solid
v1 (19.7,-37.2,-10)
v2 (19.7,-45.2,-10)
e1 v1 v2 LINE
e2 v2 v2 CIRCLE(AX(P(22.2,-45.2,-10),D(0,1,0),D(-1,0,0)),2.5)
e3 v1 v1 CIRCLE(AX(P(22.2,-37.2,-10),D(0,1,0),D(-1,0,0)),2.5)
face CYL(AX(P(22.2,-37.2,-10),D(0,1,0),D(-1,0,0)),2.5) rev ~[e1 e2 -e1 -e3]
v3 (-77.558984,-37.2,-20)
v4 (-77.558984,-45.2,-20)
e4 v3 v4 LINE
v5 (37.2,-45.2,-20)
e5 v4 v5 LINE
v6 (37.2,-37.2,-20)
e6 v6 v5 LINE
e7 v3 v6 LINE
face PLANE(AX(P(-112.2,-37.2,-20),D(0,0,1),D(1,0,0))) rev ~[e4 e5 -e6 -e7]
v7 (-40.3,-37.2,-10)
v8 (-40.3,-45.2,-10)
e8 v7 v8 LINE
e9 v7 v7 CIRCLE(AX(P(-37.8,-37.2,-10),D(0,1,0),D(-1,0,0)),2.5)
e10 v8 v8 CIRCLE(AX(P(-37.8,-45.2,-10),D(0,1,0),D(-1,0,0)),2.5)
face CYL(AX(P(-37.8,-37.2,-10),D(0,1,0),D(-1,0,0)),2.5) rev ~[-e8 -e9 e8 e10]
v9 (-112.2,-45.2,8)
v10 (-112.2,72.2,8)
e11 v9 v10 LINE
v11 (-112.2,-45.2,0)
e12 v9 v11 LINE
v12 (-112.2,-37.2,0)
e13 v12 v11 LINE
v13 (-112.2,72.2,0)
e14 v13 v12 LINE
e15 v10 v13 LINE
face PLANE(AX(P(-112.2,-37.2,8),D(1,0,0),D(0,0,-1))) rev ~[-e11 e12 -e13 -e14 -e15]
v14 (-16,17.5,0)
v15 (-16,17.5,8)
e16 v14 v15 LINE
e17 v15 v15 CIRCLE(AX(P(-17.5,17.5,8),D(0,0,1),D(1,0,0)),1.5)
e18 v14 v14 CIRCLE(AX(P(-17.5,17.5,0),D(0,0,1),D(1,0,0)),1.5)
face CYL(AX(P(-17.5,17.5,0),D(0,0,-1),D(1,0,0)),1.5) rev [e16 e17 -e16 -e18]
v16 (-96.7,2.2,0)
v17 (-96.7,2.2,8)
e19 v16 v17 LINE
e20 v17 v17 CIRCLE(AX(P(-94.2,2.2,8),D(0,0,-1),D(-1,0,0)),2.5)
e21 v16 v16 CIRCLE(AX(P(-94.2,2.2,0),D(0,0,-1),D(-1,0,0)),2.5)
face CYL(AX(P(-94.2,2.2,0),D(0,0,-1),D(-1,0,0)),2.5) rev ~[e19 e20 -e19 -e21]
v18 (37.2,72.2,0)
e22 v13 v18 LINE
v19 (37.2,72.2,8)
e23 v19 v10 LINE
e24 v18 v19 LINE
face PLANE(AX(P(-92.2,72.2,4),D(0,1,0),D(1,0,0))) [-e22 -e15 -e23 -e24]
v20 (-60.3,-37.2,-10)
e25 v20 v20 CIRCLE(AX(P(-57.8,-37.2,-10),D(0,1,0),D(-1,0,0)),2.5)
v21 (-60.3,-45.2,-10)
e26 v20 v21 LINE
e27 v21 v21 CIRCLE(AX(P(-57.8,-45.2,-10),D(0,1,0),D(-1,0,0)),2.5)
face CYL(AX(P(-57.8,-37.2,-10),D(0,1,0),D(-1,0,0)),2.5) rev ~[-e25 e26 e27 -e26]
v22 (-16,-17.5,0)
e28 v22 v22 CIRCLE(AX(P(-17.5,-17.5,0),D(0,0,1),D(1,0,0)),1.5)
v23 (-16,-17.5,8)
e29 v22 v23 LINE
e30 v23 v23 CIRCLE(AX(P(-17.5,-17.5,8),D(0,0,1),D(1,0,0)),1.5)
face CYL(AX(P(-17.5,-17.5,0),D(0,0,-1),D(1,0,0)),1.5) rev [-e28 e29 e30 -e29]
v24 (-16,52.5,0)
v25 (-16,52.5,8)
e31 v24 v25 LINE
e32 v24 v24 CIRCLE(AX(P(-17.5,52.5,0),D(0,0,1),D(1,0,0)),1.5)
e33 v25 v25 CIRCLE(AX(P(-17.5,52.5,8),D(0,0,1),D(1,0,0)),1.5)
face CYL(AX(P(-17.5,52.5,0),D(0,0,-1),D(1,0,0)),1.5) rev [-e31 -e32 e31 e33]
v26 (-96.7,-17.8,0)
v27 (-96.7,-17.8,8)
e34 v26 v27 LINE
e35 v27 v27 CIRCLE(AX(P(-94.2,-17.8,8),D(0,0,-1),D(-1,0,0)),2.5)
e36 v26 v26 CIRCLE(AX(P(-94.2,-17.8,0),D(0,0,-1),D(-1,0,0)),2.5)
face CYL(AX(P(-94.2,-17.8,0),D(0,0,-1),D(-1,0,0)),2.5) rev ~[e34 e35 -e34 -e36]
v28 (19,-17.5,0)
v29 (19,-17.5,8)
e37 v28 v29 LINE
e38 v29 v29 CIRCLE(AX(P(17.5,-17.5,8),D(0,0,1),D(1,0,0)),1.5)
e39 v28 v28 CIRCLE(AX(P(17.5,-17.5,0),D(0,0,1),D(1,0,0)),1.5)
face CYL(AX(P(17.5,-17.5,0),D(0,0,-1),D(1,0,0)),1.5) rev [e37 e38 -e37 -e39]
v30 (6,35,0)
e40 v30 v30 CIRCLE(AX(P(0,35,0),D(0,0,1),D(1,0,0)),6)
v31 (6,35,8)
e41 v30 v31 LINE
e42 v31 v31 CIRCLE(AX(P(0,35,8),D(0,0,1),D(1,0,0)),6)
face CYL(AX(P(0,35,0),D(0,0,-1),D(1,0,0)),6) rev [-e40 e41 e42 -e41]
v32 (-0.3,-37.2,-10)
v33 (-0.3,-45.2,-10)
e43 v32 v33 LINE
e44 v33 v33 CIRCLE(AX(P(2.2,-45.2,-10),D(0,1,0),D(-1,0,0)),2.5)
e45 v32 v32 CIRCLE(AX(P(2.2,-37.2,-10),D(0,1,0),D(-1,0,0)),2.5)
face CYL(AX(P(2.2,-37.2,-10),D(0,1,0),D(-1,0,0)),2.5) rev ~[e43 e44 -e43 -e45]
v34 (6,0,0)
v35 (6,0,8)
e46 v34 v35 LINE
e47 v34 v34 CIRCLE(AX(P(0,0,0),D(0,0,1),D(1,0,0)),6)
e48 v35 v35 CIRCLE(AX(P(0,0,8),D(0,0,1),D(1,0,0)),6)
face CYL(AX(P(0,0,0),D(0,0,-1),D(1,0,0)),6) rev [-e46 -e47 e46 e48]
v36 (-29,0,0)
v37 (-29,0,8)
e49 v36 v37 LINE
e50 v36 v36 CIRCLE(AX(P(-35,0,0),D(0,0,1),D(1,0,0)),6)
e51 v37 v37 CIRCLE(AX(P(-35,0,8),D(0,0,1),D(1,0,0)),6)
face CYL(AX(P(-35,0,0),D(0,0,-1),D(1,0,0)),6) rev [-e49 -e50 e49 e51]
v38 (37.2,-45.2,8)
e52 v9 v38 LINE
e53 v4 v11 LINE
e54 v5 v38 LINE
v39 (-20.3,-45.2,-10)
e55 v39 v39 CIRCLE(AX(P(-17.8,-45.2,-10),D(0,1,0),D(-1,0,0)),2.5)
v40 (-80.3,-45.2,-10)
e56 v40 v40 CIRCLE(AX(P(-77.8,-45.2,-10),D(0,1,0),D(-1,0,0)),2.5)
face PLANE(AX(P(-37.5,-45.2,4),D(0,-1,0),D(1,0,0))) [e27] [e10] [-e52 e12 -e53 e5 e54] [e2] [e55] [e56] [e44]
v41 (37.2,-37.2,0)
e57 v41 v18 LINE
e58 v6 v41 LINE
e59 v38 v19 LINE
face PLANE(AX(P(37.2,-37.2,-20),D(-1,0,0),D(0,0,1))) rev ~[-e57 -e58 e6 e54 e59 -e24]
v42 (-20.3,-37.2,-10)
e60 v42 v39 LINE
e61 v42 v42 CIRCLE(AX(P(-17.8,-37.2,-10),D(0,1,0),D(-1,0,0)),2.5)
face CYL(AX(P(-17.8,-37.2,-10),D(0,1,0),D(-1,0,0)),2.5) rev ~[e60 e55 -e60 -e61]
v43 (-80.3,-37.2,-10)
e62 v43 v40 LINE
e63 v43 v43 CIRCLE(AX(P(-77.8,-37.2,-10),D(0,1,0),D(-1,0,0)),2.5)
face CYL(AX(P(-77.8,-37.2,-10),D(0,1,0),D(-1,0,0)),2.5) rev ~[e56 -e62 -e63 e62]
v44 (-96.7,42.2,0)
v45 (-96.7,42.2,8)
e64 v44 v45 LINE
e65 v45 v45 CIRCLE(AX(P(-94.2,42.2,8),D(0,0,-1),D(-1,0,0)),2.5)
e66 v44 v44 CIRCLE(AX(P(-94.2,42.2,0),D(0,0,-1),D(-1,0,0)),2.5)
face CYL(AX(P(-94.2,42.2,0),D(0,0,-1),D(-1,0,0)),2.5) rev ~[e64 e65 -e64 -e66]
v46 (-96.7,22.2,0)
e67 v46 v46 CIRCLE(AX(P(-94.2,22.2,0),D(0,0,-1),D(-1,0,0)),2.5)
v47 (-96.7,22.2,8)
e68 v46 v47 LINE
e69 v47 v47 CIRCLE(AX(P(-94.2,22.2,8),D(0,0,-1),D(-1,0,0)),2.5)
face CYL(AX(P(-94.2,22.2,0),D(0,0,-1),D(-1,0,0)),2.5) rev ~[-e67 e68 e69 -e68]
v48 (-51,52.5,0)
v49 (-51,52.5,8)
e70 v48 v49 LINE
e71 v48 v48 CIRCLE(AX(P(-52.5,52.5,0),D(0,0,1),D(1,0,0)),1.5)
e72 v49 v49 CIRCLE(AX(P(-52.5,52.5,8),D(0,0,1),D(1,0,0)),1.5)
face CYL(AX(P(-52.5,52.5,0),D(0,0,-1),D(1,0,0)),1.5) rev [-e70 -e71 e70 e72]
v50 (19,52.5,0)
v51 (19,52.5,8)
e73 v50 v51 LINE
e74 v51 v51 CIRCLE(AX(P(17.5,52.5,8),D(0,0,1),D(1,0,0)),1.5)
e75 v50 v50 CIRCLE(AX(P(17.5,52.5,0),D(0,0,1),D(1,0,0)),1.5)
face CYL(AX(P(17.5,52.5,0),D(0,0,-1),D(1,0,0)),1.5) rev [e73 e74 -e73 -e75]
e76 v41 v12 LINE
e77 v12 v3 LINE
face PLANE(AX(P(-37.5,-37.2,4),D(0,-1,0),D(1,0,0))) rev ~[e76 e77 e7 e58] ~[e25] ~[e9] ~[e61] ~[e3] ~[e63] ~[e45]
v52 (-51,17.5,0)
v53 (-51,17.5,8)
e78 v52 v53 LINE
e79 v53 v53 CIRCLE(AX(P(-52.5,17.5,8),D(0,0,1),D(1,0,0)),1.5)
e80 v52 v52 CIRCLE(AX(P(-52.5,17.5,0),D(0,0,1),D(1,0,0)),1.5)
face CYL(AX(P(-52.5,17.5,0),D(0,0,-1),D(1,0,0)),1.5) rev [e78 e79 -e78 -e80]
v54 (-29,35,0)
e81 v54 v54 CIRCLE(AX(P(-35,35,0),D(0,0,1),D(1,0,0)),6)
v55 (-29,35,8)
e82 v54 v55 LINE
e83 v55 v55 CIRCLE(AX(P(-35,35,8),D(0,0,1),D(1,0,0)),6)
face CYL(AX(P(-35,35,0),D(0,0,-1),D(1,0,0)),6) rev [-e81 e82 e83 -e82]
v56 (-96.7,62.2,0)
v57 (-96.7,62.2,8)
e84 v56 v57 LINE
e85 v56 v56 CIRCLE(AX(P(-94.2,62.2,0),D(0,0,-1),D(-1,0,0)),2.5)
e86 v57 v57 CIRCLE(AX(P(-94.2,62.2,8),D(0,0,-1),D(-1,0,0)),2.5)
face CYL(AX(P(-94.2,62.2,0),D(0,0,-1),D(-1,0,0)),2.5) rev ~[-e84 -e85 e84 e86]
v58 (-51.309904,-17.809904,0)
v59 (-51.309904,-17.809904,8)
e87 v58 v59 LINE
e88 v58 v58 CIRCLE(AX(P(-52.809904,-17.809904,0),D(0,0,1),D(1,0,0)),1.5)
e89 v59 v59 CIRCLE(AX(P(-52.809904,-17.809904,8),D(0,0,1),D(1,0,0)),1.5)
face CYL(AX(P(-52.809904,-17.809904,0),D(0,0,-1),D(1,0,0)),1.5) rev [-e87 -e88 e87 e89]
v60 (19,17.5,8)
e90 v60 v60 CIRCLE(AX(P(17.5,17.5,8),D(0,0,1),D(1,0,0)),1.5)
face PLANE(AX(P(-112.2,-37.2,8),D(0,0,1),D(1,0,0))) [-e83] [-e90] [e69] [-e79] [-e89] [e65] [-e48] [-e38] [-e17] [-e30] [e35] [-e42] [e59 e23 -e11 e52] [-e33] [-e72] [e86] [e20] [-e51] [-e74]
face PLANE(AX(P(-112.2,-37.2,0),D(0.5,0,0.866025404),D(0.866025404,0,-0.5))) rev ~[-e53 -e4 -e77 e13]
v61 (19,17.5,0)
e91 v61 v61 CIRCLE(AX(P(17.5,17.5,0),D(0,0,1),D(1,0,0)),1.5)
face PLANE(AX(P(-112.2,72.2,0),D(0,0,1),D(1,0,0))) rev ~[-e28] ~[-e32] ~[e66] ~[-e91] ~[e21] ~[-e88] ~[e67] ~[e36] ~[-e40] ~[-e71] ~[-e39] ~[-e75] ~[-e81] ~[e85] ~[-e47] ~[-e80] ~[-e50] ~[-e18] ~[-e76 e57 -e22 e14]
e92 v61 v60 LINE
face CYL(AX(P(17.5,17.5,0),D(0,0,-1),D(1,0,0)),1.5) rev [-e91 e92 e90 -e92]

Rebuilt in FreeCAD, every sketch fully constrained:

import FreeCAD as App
import Part
import Sketcher
from FreeCAD import Vector
Q = App.Units.Quantity


def add_polygon(sketch, points):
    """Adds a closed chain of lines whose ends are joined by coincident constraints."""
    first, n = sketch.GeometryCount, len(points)
    for a, b in zip(points, points[1:] + points[:1]):
        sketch.addGeometry(Part.LineSegment(App.Vector(*a, 0), App.Vector(*b, 0)), False)
    for i in range(n):
        sketch.addConstraint(Sketcher.Constraint("Coincident", first + i, 2, first + (i + 1) % n, 1))

doc = App.newDocument("Part")
params = doc.addObject("Spreadsheet::Sheet", "Params")
for row, (alias, value) in enumerate([
    ("sketch1_diameter", "12 mm"),
    ("sketch1_diameter2", "3 mm"),
    ("sketch1_width", "109.4 mm"),
    ("pad1_length", "8 mm"),
    ("sketch2_width", "40 mm"),
    ("sketch2_height", "8 mm"),
    ("pad2_length", "109.4 mm"),
    ("sketch3_diameter", "5 mm"),
    ("pocket1_length", "25 mm"),
    ("sketch4_height", "28 mm"),
    ("sketch4_width", "149.4 mm"),
    ("pad3_length", "8 mm"),
    ("sketch5_height", "20 mm"),
    ("pocket2_length", "37 mm"),
    ("sketch6_diameter", "5 mm"),
    ("pocket3_length", "10 mm"),
], start=1):
    params.set(f"A{row}", alias)
    params.set(f"B{row}", "=" + value)
    params.setAlias(f"B{row}", alias)

body = doc.addObject("PartDesign::Body", "Body")

# Sketch on XY plane
sketch1 = body.newObject("Sketcher::SketchObject", "Sketch")
sketch1.AttachmentSupport = (doc.getObject("XY_Plane"), [""])
sketch1.MapMode = "FlatFace"
add_polygon(sketch1, [(-72.2, 72.2), (-72.2, -37.2), (37.2, -37.2), (37.2, 72.2)])  # lines 0-3
sketch1.addGeometry(Part.Circle(Vector(0, 35, 0), Vector(0, 0, 1), 6), False)  # 4
sketch1.addGeometry(Part.Circle(Vector(17.5, 52.5, 0), Vector(0, 0, 1), 1.5), False)  # 5
sketch1.addGeometry(Part.Circle(Vector(17.5, 17.5, 0), Vector(0, 0, 1), 1.5), False)  # 6
sketch1.addGeometry(Part.Circle(Vector(-17.5, 52.5, 0), Vector(0, 0, 1), 1.5), False)  # 7
sketch1.addGeometry(Part.Circle(Vector(-52.8, -17.8, 0), Vector(0, 0, 1), 1.5), False)  # 8
sketch1.addGeometry(Part.Circle(Vector(-35, 0, 0), Vector(0, 0, 1), 6), False)  # 9
sketch1.addGeometry(Part.Circle(Vector(-17.5, -17.5, 0), Vector(0, 0, 1), 1.5), False)  # 10
sketch1.addGeometry(Part.Circle(Vector(17.5, -17.5, 0), Vector(0, 0, 1), 1.5), False)  # 11
sketch1.addGeometry(Part.Circle(Vector(0, 0, 0), Vector(0, 0, 1), 6), False)  # 12
sketch1.addGeometry(Part.Circle(Vector(-52.5, 17.5, 0), Vector(0, 0, 1), 1.5), False)  # 13
sketch1.addGeometry(Part.Circle(Vector(-35, 35, 0), Vector(0, 0, 1), 6), False)  # 14
sketch1.addGeometry(Part.Circle(Vector(-52.5, 52.5, 0), Vector(0, 0, 1), 1.5), False)  # 15
sketch1.addGeometry(Part.Circle(Vector(-17.5, 17.5, 0), Vector(0, 0, 1), 1.5), False)  # 16
sketch1.addConstraint(Sketcher.Constraint("Vertical", 0))
sketch1.addConstraint(Sketcher.Constraint("Horizontal", 1))
sketch1.addConstraint(Sketcher.Constraint("Vertical", 2))
sketch1.addConstraint(Sketcher.Constraint("Horizontal", 3))
sketch1.addConstraint(Sketcher.Constraint("Coincident", 12, 3, -1, 1))
sketch1.addConstraint(Sketcher.Constraint("Equal", 5, 6))
sketch1.addConstraint(Sketcher.Constraint("Equal", 6, 7))
sketch1.addConstraint(Sketcher.Constraint("Equal", 7, 8))
sketch1.addConstraint(Sketcher.Constraint("Equal", 4, 9))
sketch1.addConstraint(Sketcher.Constraint("Equal", 8, 10))
sketch1.addConstraint(Sketcher.Constraint("Equal", 10, 11))
sketch1.addConstraint(Sketcher.Constraint("Equal", 9, 12))
sketch1.addConstraint(Sketcher.Constraint("Equal", 11, 13))
sketch1.addConstraint(Sketcher.Constraint("Equal", 12, 14))
sketch1.addConstraint(Sketcher.Constraint("Equal", 13, 15))
sketch1.addConstraint(Sketcher.Constraint("Equal", 15, 16))
sketch1.addConstraint(Sketcher.Constraint("Symmetric", 6, 3, 10, 3, -1, 1))
sketch1.addConstraint(Sketcher.Constraint("Symmetric", 11, 3, 16, 3, -1, 1))
sketch1.addConstraint(Sketcher.Constraint("Symmetric", 5, 3, 7, 3, -2))
sketch1.addConstraint(Sketcher.Constraint("Symmetric", 10, 3, 11, 3, -2))
sketch1.addConstraint(Sketcher.Constraint("PointOnObject", 4, 3, -2))
sketch1.addConstraint(Sketcher.Constraint("PointOnObject", 9, 3, -1))
sketch1.addConstraint(Sketcher.Constraint("Horizontal", 6, 3, 13, 3))
sketch1.addConstraint(Sketcher.Constraint("Horizontal", 4, 3, 14, 3))
sketch1.addConstraint(Sketcher.Constraint("Horizontal", 7, 3, 15, 3))
sketch1.addConstraint(Sketcher.Constraint("Vertical", 5, 3, 6, 3))
sketch1.addConstraint(Sketcher.Constraint("Vertical", 9, 3, 14, 3))
sketch1.addConstraint(Sketcher.Constraint("Vertical", 13, 3, 15, 3))
sketch1.addConstraint(Sketcher.Constraint("Equal", 3, 0))
sketch1.addConstraint(Sketcher.Constraint("Diameter", 4, Q("12 mm")))
sketch1.addConstraint(Sketcher.Constraint("Diameter", 5, Q("3 mm")))
sketch1.addConstraint(Sketcher.Constraint("DistanceX", 1, 1, 1, 2, Q("109.4 mm")))
sketch1.addConstraint(Sketcher.Constraint("DistanceY", -1, 1, 4, 3, Q("35 mm")))
sketch1.addConstraint(Sketcher.Constraint("DistanceX", 9, 3, -1, 1, Q("35 mm")))
sketch1.addConstraint(Sketcher.Constraint("DistanceY", 6, 3, 5, 3, Q("35 mm")))
sketch1.addConstraint(Sketcher.Constraint("DistanceX", 7, 3, 5, 3, Q("35 mm")))
sketch1.addConstraint(Sketcher.Constraint("DistanceY", 10, 3, 6, 3, Q("35 mm")))
sketch1.addConstraint(Sketcher.Constraint("DistanceX", 13, 3, 7, 3, Q("35 mm")))
sketch1.addConstraint(Sketcher.Constraint("DistanceX", 0, 2, -1, 1, Q("72.2 mm")))
sketch1.addConstraint(Sketcher.Constraint("DistanceY", 0, 2, -1, 1, Q("37.2 mm")))
sketch1.addConstraint(Sketcher.Constraint("DistanceX", 8, 3, -1, 1, Q("52.809904 mm")))
sketch1.addConstraint(Sketcher.Constraint("DistanceY", 8, 3, -1, 1, Q("17.809904 mm")))
sketch1.setExpression("Constraints[33]", "Params.sketch1_diameter")
sketch1.setExpression("Constraints[34]", "Params.sketch1_diameter2")
sketch1.setExpression("Constraints[35]", "Params.sketch1_width")
pad1 = body.newObject("PartDesign::Pad", "Pad")
pad1.Profile = sketch1
pad1.setExpression("Length", "Params.pad1_length")

# Sketch on XZ plane
sketch2 = body.newObject("Sketcher::SketchObject", "Sketch001")
sketch2.AttachmentSupport = (doc.getObject("XZ_Plane"), [""])
sketch2.MapMode = "FlatFace"
sketch2.AttachmentOffset = App.Placement(Vector(0, 0, -72.2), App.Rotation())
add_polygon(sketch2, [(-112, 0), (-112, 8), (-72, 8), (-72, 0)])  # lines 0-3
sketch2.addConstraint(Sketcher.Constraint("Vertical", 0))
sketch2.addConstraint(Sketcher.Constraint("Horizontal", 1))
sketch2.addConstraint(Sketcher.Constraint("Vertical", 2))
sketch2.addConstraint(Sketcher.Constraint("Horizontal", 3))
sketch2.addConstraint(Sketcher.Constraint("PointOnObject", 2, 2, -1))
sketch2.addConstraint(Sketcher.Constraint("DistanceX", 1, 1, 1, 2, Q("40 mm")))
sketch2.addConstraint(Sketcher.Constraint("DistanceY", 0, 1, 0, 2, Q("8 mm")))
sketch2.addConstraint(Sketcher.Constraint("DistanceX", 0, 2, -1, 1, Q("112.2 mm")))
sketch2.setExpression("Constraints[9]", "Params.sketch2_width")
sketch2.setExpression("Constraints[10]", "Params.sketch2_height")
pad2 = body.newObject("PartDesign::Pad", "Pad001")
pad2.Profile = sketch2
pad2.setExpression("Length", "Params.pad2_length")

# Sketch on XY plane
sketch3 = body.newObject("Sketcher::SketchObject", "Sketch002")
sketch3.AttachmentSupport = (doc.getObject("XY_Plane"), [""])
sketch3.MapMode = "FlatFace"
sketch3.addGeometry(Part.Circle(Vector(-94.2, 62.2, 0), Vector(0, 0, 1), 2.5), False)
sketch3.addGeometry(Part.Circle(Vector(-94.2, 42.2, 0), Vector(0, 0, 1), 2.5), False)
sketch3.addGeometry(Part.Circle(Vector(-94.2, 22.2, 0), Vector(0, 0, 1), 2.5), False)
sketch3.addGeometry(Part.Circle(Vector(-94.2, 2.2, 0), Vector(0, 0, 1), 2.5), False)
sketch3.addGeometry(Part.Circle(Vector(-94.2, -17.8, 0), Vector(0, 0, 1), 2.5), False)
sketch3.addConstraint(Sketcher.Constraint("Equal", 0, 1))
sketch3.addConstraint(Sketcher.Constraint("Equal", 1, 2))
sketch3.addConstraint(Sketcher.Constraint("Equal", 2, 3))
sketch3.addConstraint(Sketcher.Constraint("Equal", 3, 4))
sketch3.addConstraint(Sketcher.Constraint("Vertical", 0, 3, 1, 3))
sketch3.addConstraint(Sketcher.Constraint("Vertical", 1, 3, 2, 3))
sketch3.addConstraint(Sketcher.Constraint("Vertical", 2, 3, 3, 3))
sketch3.addConstraint(Sketcher.Constraint("Vertical", 3, 3, 4, 3))
sketch3.addConstraint(Sketcher.Constraint("Diameter", 0, Q("5 mm")))
sketch3.addConstraint(Sketcher.Constraint("DistanceY", 1, 3, 0, 3, Q("20 mm")))
sketch3.addConstraint(Sketcher.Constraint("DistanceY", 2, 3, 1, 3, Q("20 mm")))
sketch3.addConstraint(Sketcher.Constraint("DistanceY", 3, 3, 2, 3, Q("20 mm")))
sketch3.addConstraint(Sketcher.Constraint("DistanceY", 4, 3, 3, 3, Q("20 mm")))
sketch3.addConstraint(Sketcher.Constraint("DistanceX", 0, 3, -1, 1, Q("94.2 mm")))
sketch3.addConstraint(Sketcher.Constraint("DistanceY", -1, 1, 0, 3, Q("62.2 mm")))
sketch3.setExpression("Constraints[8]", "Params.sketch3_diameter")
pocket1 = body.newObject("PartDesign::Pocket", "Pocket")
pocket1.Profile = sketch3
pocket1.setExpression("Length", "Params.pocket1_length")
pocket1.Reversed = True

# Sketch on XZ plane
sketch4 = body.newObject("Sketcher::SketchObject", "Sketch003")
sketch4.AttachmentSupport = (doc.getObject("XZ_Plane"), [""])
sketch4.MapMode = "FlatFace"
sketch4.AttachmentOffset = App.Placement(Vector(0, 0, 37.2), App.Rotation())
add_polygon(sketch4, [(-112, 8), (-112, -20), (37, -20), (37, 8)])  # lines 0-3
sketch4.addConstraint(Sketcher.Constraint("Vertical", 0))
sketch4.addConstraint(Sketcher.Constraint("Horizontal", 1))
sketch4.addConstraint(Sketcher.Constraint("Vertical", 2))
sketch4.addConstraint(Sketcher.Constraint("Horizontal", 3))
sketch4.addConstraint(Sketcher.Constraint("DistanceY", 0, 2, 0, 1, Q("28 mm")))
sketch4.addConstraint(Sketcher.Constraint("DistanceX", 1, 1, 1, 2, Q("149.4 mm")))
sketch4.addConstraint(Sketcher.Constraint("DistanceY", 0, 2, -1, 1, Q("20 mm")))
sketch4.addConstraint(Sketcher.Constraint("DistanceX", 0, 2, -1, 1, Q("112.2 mm")))
sketch4.setExpression("Constraints[8]", "Params.sketch4_height")
sketch4.setExpression("Constraints[9]", "Params.sketch4_width")
pad3 = body.newObject("PartDesign::Pad", "Pad002")
pad3.Profile = sketch4
pad3.setExpression("Length", "Params.pad3_length")

# Sketch on XZ plane
sketch5 = body.newObject("Sketcher::SketchObject", "Sketch004")
sketch5.AttachmentSupport = (doc.getObject("XZ_Plane"), [""])
sketch5.MapMode = "FlatFace"
sketch5.AttachmentOffset = App.Placement(Vector(0, 0, 37.2), App.Rotation())
add_polygon(sketch5, [(-112, 0), (-78, -20), (-112, -20)])  # lines 0-2
sketch5.addConstraint(Sketcher.Constraint("Horizontal", 1))
sketch5.addConstraint(Sketcher.Constraint("Vertical", 2))
sketch5.addConstraint(Sketcher.Constraint("PointOnObject", 2, 2, -1))
sketch5.addConstraint(Sketcher.Constraint("DistanceY", 2, 1, 2, 2, Q("20 mm")))
sketch5.addConstraint(Sketcher.Constraint("Angle", 0, Q("-30 deg")))
sketch5.addConstraint(Sketcher.Constraint("DistanceX", 1, 2, -1, 1, Q("112.2 mm")))
sketch5.setExpression("Constraints[6]", "Params.sketch5_height")
pocket2 = body.newObject("PartDesign::Pocket", "Pocket001")
pocket2.Profile = sketch5
pocket2.setExpression("Length", "Params.pocket2_length")
pocket2.Reversed = True

# Sketch on XZ plane
sketch6 = body.newObject("Sketcher::SketchObject", "Sketch005")
sketch6.AttachmentSupport = (doc.getObject("XZ_Plane"), [""])
sketch6.MapMode = "FlatFace"
sketch6.AttachmentOffset = App.Placement(Vector(0, 0, 37.2), App.Rotation())
sketch6.addGeometry(Part.Circle(Vector(22.2, -10, 0), Vector(0, 0, 1), 2.5), False)
sketch6.addGeometry(Part.Circle(Vector(2.2, -10, 0), Vector(0, 0, 1), 2.5), False)
sketch6.addGeometry(Part.Circle(Vector(-17.8, -10, 0), Vector(0, 0, 1), 2.5), False)
sketch6.addGeometry(Part.Circle(Vector(-37.8, -10, 0), Vector(0, 0, 1), 2.5), False)
sketch6.addGeometry(Part.Circle(Vector(-57.8, -10, 0), Vector(0, 0, 1), 2.5), False)
sketch6.addGeometry(Part.Circle(Vector(-77.8, -10, 0), Vector(0, 0, 1), 2.5), False)
sketch6.addConstraint(Sketcher.Constraint("Equal", 0, 1))
sketch6.addConstraint(Sketcher.Constraint("Equal", 1, 2))
sketch6.addConstraint(Sketcher.Constraint("Equal", 2, 3))
sketch6.addConstraint(Sketcher.Constraint("Equal", 3, 4))
sketch6.addConstraint(Sketcher.Constraint("Equal", 4, 5))
sketch6.addConstraint(Sketcher.Constraint("Horizontal", 0, 3, 1, 3))
sketch6.addConstraint(Sketcher.Constraint("Horizontal", 1, 3, 2, 3))
sketch6.addConstraint(Sketcher.Constraint("Horizontal", 2, 3, 3, 3))
sketch6.addConstraint(Sketcher.Constraint("Horizontal", 3, 3, 4, 3))
sketch6.addConstraint(Sketcher.Constraint("Horizontal", 4, 3, 5, 3))
sketch6.addConstraint(Sketcher.Constraint("Diameter", 0, Q("5 mm")))
sketch6.addConstraint(Sketcher.Constraint("DistanceY", 0, 3, -1, 1, Q("10 mm")))
sketch6.addConstraint(Sketcher.Constraint("DistanceX", 1, 3, 0, 3, Q("20 mm")))
sketch6.addConstraint(Sketcher.Constraint("DistanceX", 2, 3, 1, 3, Q("20 mm")))
sketch6.addConstraint(Sketcher.Constraint("DistanceX", 3, 3, 2, 3, Q("20 mm")))
sketch6.addConstraint(Sketcher.Constraint("DistanceX", 4, 3, 3, 3, Q("20 mm")))
sketch6.addConstraint(Sketcher.Constraint("DistanceX", 5, 3, 4, 3, Q("20 mm")))
sketch6.addConstraint(Sketcher.Constraint("DistanceX", -1, 1, 0, 3, Q("22.2 mm")))
sketch6.setExpression("Constraints[10]", "Params.sketch6_diameter")
pocket3 = body.newObject("PartDesign::Pocket", "Pocket002")
pocket3.Profile = sketch6
pocket3.setExpression("Length", "Params.pocket3_length")
pocket3.Reversed = True

doc.recompute()
